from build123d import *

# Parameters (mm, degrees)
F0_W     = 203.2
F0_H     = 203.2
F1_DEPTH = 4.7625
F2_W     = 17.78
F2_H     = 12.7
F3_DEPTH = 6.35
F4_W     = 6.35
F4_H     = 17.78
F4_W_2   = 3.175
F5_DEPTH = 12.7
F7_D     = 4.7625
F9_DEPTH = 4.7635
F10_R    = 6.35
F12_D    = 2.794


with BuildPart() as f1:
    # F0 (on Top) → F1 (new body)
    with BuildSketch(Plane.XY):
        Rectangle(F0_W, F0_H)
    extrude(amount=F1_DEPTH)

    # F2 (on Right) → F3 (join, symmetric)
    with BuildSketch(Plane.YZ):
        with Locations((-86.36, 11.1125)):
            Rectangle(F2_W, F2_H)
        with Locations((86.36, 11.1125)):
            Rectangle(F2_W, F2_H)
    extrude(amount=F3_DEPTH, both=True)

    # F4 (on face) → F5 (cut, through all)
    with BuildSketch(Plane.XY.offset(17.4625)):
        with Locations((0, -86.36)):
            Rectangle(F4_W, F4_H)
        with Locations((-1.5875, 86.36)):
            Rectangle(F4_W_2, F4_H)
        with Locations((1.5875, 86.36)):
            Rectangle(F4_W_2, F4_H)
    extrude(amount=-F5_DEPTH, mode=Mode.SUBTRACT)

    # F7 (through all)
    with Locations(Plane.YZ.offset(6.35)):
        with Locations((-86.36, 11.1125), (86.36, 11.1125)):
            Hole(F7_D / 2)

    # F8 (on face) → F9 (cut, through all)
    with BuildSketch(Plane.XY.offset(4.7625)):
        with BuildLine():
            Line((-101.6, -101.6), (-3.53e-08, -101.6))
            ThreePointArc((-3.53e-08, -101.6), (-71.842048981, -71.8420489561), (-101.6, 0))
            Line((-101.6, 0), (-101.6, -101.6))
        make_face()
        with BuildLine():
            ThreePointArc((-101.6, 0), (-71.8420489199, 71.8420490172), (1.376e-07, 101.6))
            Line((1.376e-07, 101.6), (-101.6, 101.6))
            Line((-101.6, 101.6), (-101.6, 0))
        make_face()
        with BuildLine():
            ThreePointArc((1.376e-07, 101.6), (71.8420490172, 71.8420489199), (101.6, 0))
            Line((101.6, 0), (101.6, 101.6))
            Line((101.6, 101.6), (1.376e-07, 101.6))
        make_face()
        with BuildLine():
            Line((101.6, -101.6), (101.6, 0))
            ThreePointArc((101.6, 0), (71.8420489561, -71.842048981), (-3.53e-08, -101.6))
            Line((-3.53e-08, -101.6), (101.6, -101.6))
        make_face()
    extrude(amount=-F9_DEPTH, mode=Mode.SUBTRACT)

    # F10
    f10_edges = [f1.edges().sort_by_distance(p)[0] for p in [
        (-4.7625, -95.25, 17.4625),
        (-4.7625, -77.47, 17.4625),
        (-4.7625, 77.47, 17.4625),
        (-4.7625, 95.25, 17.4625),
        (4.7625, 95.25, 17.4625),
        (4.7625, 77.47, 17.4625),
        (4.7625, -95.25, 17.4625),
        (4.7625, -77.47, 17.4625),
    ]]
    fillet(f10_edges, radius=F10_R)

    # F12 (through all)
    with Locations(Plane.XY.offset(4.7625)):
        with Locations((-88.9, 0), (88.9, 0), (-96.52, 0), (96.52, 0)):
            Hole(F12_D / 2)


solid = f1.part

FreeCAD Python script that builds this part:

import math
import FreeCAD as App
import Part
import Sketcher
from FreeCAD import Vector
Q = App.Units.Quantity


def edges_at(feature, points):
    """Names of the edges that pass closest to the given points."""
    edges = feature.Shape.Edges
    near = lambda p: min(range(len(edges)), key=lambda i: edges[i].distToShape(Part.Vertex(*p))[0])
    return sorted({f"Edge{near(p) + 1}" for p in points})


def add_polygon(sketch, points):
    """Adds a closed chain of lines whose ends are joined by coincident constraints."""
    first, n = sketch.GeometryCount, len(points)
    for a, b in zip(points, points[1:] + points[:1]):
        sketch.addGeometry(Part.LineSegment(App.Vector(*a, 0), App.Vector(*b, 0)), False)
    for i in range(n):
        sketch.addConstraint(Sketcher.Constraint("Coincident", first + i, 2, first + (i + 1) % n, 1))

doc = App.newDocument("Part")
body = doc.addObject("PartDesign::Body", "Body")

# Sketch on XY plane
sketch1 = body.newObject("Sketcher::SketchObject", "Sketch")
sketch1.AttachmentSupport = (doc.getObject("XY_Plane"), [""])
sketch1.MapMode = "FlatFace"
add_polygon(sketch1, [(-101.6, 101.6), (-101.6, -101.6), (101.6, -101.6), (101.6, 101.6)])  # lines 0-3
sketch1.addConstraint(Sketcher.Constraint("Vertical", 0))
sketch1.addConstraint(Sketcher.Constraint("Horizontal", 1))
sketch1.addConstraint(Sketcher.Constraint("Vertical", 2))
sketch1.addConstraint(Sketcher.Constraint("Horizontal", 3))
sketch1.addConstraint(Sketcher.Constraint("Symmetric", 0, 2, 2, 2, -1, 1))
sketch1.addConstraint(Sketcher.Constraint("Equal", 3, 0))
sketch1.addConstraint(Sketcher.Constraint("DistanceX", 1, 1, 1, 2, Q("8 in")))
pad1 = body.newObject("PartDesign::Pad", "Pad")
pad1.Profile = sketch1
pad1.Length = Q("0.1875 in")

# Sketch on YZ plane
sketch2 = body.newObject("Sketcher::SketchObject", "Sketch001")
sketch2.AttachmentSupport = (doc.getObject("YZ_Plane"), [""])
sketch2.MapMode = "FlatFace"
add_polygon(sketch2, [(-95.25, 17.4625), (-95.25, 4.7625), (-77.47, 4.7625), (-77.47, 17.4625)])  # lines 0-3
add_polygon(sketch2, [(77.47, 17.4625), (77.47, 4.7625), (95.25, 4.7625), (95.25, 17.4625)])  # lines 4-7
sketch2.addConstraint(Sketcher.Constraint("Vertical", 0))
sketch2.addConstraint(Sketcher.Constraint("Horizontal", 1))
sketch2.addConstraint(Sketcher.Constraint("Vertical", 2))
sketch2.addConstraint(Sketcher.Constraint("Horizontal", 3))
sketch2.addConstraint(Sketcher.Constraint("Vertical", 4))
sketch2.addConstraint(Sketcher.Constraint("Horizontal", 5))
sketch2.addConstraint(Sketcher.Constraint("Vertical", 6))
sketch2.addConstraint(Sketcher.Constraint("Horizontal", 7))
sketch2.addConstraint(Sketcher.Constraint("Symmetric", 1, 2, 4, 2, -2))
sketch2.addConstraint(Sketcher.Constraint("Symmetric", 3, 2, 6, 2, -2))
sketch2.addConstraint(Sketcher.Constraint("DistanceX", 1, 1, 1, 2, Q("0.7 in")))
sketch2.addConstraint(Sketcher.Constraint("DistanceY", 0, 2, 0, 1, Q("0.5 in")))
sketch2.addConstraint(Sketcher.Constraint("DistanceX", 1, 2, 4, 2, Q("6.1 in")))
sketch2.addConstraint(Sketcher.Constraint("DistanceY", -1, 1, 0, 2, Q("0.1875 in")))
pad2 = body.newObject("PartDesign::Pad", "Pad001")
pad2.Profile = sketch2
pad2.Length = Q("0.5 in")
pad2.Midplane = True

# Sketch on XY plane
sketch3 = body.newObject("Sketcher::SketchObject", "Sketch002")
sketch3.AttachmentSupport = (doc.getObject("XY_Plane"), [""])
sketch3.MapMode = "FlatFace"
sketch3.AttachmentOffset = App.Placement(Vector(0, 0, 0.6875 * 25.4), App.Rotation())
add_polygon(sketch3, [(-3.175, -77.47), (-3.175, -95.25), (3.175, -95.25), (3.175, -77.47)])  # lines 0-3
add_polygon(sketch3, [(-3.175, 95.25), (-3.175, 77.47), (3.175, 77.47), (3.175, 95.25)])  # lines 4-7
sketch3.addConstraint(Sketcher.Constraint("Vertical", 0))
sketch3.addConstraint(Sketcher.Constraint("Horizontal", 1))
sketch3.addConstraint(Sketcher.Constraint("Vertical", 2))
sketch3.addConstraint(Sketcher.Constraint("Horizontal", 3))
sketch3.addConstraint(Sketcher.Constraint("Vertical", 4))
sketch3.addConstraint(Sketcher.Constraint("Horizontal", 5))
sketch3.addConstraint(Sketcher.Constraint("Vertical", 6))
sketch3.addConstraint(Sketcher.Constraint("Horizontal", 7))
sketch3.addConstraint(Sketcher.Constraint("Symmetric", 2, 2, 4, 2, -1, 1))
sketch3.addConstraint(Sketcher.Constraint("Symmetric", 0, 2, 6, 2, -1, 1))
sketch3.addConstraint(Sketcher.Constraint("Vertical", 3, 2, 4, 2))
sketch3.addConstraint(Sketcher.Constraint("DistanceY", 0, 2, 0, 1, Q("0.7 in")))
sketch3.addConstraint(Sketcher.Constraint("DistanceX", 1, 1, 1, 2, Q("0.25 in")))
sketch3.addConstraint(Sketcher.Constraint("DistanceY", 3, 2, 4, 2, Q("6.1 in")))
pocket1 = body.newObject("PartDesign::Pocket", "Pocket")
pocket1.Profile = sketch3
pocket1.Length = Q("0.5 in")

# Sketch on YZ plane
sketch4 = body.newObject("Sketcher::SketchObject", "Sketch003")
sketch4.AttachmentSupport = (doc.getObject("YZ_Plane"), [""])
sketch4.MapMode = "FlatFace"
sketch4.AttachmentOffset = App.Placement(Vector(0, 0, 0.25 * 25.4), App.Rotation())
sketch4.addGeometry(Part.Circle(Vector(-86.36, 11.1125, 0), Vector(0, 0, 1), 2.38125), False)
sketch4.addGeometry(Part.Circle(Vector(86.36, 11.1125, 0), Vector(0, 0, 1), 2.38125), False)
sketch4.addConstraint(Sketcher.Constraint("Equal", 0, 1))
sketch4.addConstraint(Sketcher.Constraint("Symmetric", 0, 3, 1, 3, -2))
sketch4.addConstraint(Sketcher.Constraint("Diameter", 0, Q("0.1875 in")))
sketch4.addConstraint(Sketcher.Constraint("DistanceX", 0, 3, -1, 1, Q("3.4 in")))
sketch4.addConstraint(Sketcher.Constraint("DistanceY", -1, 1, 0, 3, Q("0.4375 in")))
doc.recompute()
hole = body.newObject("PartDesign::Hole", "Hole")
hole.Profile = sketch4
hole.ThreadType = "None"
hole.Diameter = Q("0.1875 in")
hole.DepthType = "ThroughAll"

# Sketch on XY plane
sketch5 = body.newObject("Sketcher::SketchObject", "Sketch004")
sketch5.AttachmentSupport = (doc.getObject("XY_Plane"), [""])
sketch5.MapMode = "FlatFace"
sketch5.AttachmentOffset = App.Placement(Vector(0, 0, 0.1875 * 25.4), App.Rotation())
sketch5.addGeometry(Part.LineSegment(Vector(-101.6, -101.6, 0), Vector(0, -101.6, 0)), False)
sketch5.addGeometry(Part.ArcOfCircle(Part.Circle(Vector(0, 0, 0), Vector(0, 0, 1), 101.6), math.radians(180), math.radians(270)), False)
sketch5.addGeometry(Part.LineSegment(Vector(-101.6, 0, 0), Vector(-101.6, -101.6, 0)), False)
sketch5.addGeometry(Part.ArcOfCircle(Part.Circle(Vector(0, 0, 0), Vector(0, 0, 1), 101.6), math.radians(90), math.radians(180)), False)
sketch5.addGeometry(Part.LineSegment(Vector(0, 101.6, 0), Vector(-101.6, 101.6, 0)), False)
sketch5.addGeometry(Part.LineSegment(Vector(-101.6, 101.6, 0), Vector(-101.6, 0, 0)), False)
sketch5.addGeometry(Part.ArcOfCircle(Part.Circle(Vector(0, 0, 0), Vector(0, 0, 1), 101.6), math.radians(0), math.radians(90)), False)
sketch5.addGeometry(Part.LineSegment(Vector(101.6, 0, 0), Vector(101.6, 101.6, 0)), False)
sketch5.addGeometry(Part.LineSegment(Vector(101.6, 101.6, 0), Vector(0, 101.6, 0)), False)
sketch5.addGeometry(Part.LineSegment(Vector(101.6, -101.6, 0), Vector(101.6, 0, 0)), False)
sketch5.addGeometry(Part.ArcOfCircle(Part.Circle(Vector(0, 0, 0), Vector(0, 0, 1), 101.6), math.radians(-90), math.radians(0)), False)
sketch5.addGeometry(Part.LineSegment(Vector(0, -101.6, 0), Vector(101.6, -101.6, 0)), False)
sketch5.addConstraint(Sketcher.Constraint("Tangent", 0, 2, 1, 2))
sketch5.addConstraint(Sketcher.Constraint("Tangent", 1, 1, 2, 1))
sketch5.addConstraint(Sketcher.Constraint("Coincident", 2, 2, 0, 1))
sketch5.addConstraint(Sketcher.Constraint("Tangent", 3, 1, 4, 1))
sketch5.addConstraint(Sketcher.Constraint("Coincident", 4, 2, 5, 1))
sketch5.addConstraint(Sketcher.Constraint("Tangent", 5, 2, 3, 2))
sketch5.addConstraint(Sketcher.Constraint("Tangent", 6, 1, 7, 1))
sketch5.addConstraint(Sketcher.Constraint("Coincident", 7, 2, 8, 1))
sketch5.addConstraint(Sketcher.Constraint("Tangent", 8, 2, 6, 2))
sketch5.addConstraint(Sketcher.Constraint("Tangent", 9, 2, 10, 2))
sketch5.addConstraint(Sketcher.Constraint("Tangent", 10, 1, 11, 1))
sketch5.addConstraint(Sketcher.Constraint("Coincident", 11, 2, 9, 1))
sketch5.addConstraint(Sketcher.Constraint("Horizontal", 0))
sketch5.addConstraint(Sketcher.Constraint("Vertical", 2))
sketch5.addConstraint(Sketcher.Constraint("Horizontal", 4))
sketch5.addConstraint(Sketcher.Constraint("Vertical", 5))
sketch5.addConstraint(Sketcher.Constraint("Vertical", 7))
sketch5.addConstraint(Sketcher.Constraint("Horizontal", 8))
sketch5.addConstraint(Sketcher.Constraint("Vertical", 9))
sketch5.addConstraint(Sketcher.Constraint("Horizontal", 11))
sketch5.addConstraint(Sketcher.Constraint("Coincident", 1, 3, -1, 1))
sketch5.addConstraint(Sketcher.Constraint("Coincident", 3, 3, -1, 1))
sketch5.addConstraint(Sketcher.Constraint("Coincident", 6, 3, -1, 1))
sketch5.addConstraint(Sketcher.Constraint("Coincident", 10, 3, -1, 1))
sketch5.addConstraint(Sketcher.Constraint("Equal", 1, 3))
sketch5.addConstraint(Sketcher.Constraint("Equal", 3, 6))
sketch5.addConstraint(Sketcher.Constraint("Equal", 6, 10))
sketch5.addConstraint(Sketcher.Constraint("Radius", 1, Q("4 in")))
pocket2 = body.newObject("PartDesign::Pocket", "Pocket001")
pocket2.Profile = sketch5
pocket2.Type = "ThroughAll"
doc.recompute()

fillet = body.newObject("PartDesign::Fillet", "Fillet")
fillet.Base = (pocket2, edges_at(pocket2, [
    (-4.763, -95.25, 17.462),
    (-4.763, -77.47, 17.462),
    (-4.763, 77.47, 17.462),
    (-4.763, 95.25, 17.462),
    (4.763, 95.25, 17.462),
    (4.763, 77.47, 17.462),
    (4.763, -95.25, 17.462),
    (4.763, -77.47, 17.462),
]))
fillet.Radius = Q("0.25 in")

# Sketch on XY plane
sketch6 = body.newObject("Sketcher::SketchObject", "Sketch005")
sketch6.AttachmentSupport = (doc.getObject("XY_Plane"), [""])
sketch6.MapMode = "FlatFace"
sketch6.AttachmentOffset = App.Placement(Vector(0, 0, 0.1875 * 25.4), App.Rotation())
sketch6.addGeometry(Part.Circle(Vector(-88.9, 0, 0), Vector(0, 0, 1), 1.397), False)
sketch6.addGeometry(Part.Circle(Vector(88.9, 0, 0), Vector(0, 0, 1), 1.397), False)
sketch6.addGeometry(Part.Circle(Vector(-96.52, 0, 0), Vector(0, 0, 1), 1.397), False)
sketch6.addGeometry(Part.Circle(Vector(96.52, 0, 0), Vector(0, 0, 1), 1.397), False)
sketch6.addConstraint(Sketcher.Constraint("Equal", 0, 1))
sketch6.addConstraint(Sketcher.Constraint("Equal", 1, 2))
sketch6.addConstraint(Sketcher.Constraint("Equal", 2, 3))
sketch6.addConstraint(Sketcher.Constraint("Symmetric", 0, 3, 1, 3, -1, 1))
sketch6.addConstraint(Sketcher.Constraint("Symmetric", 2, 3, 3, 3, -1, 1))
sketch6.addConstraint(Sketcher.Constraint("PointOnObject", 0, 3, -1))
sketch6.addConstraint(Sketcher.Constraint("PointOnObject", 2, 3, -1))
sketch6.addConstraint(Sketcher.Constraint("Diameter", 0, Q("0.11 in")))
sketch6.addConstraint(Sketcher.Constraint("DistanceX", 0, 3, 1, 3, Q("7 in")))
sketch6.addConstraint(Sketcher.Constraint("DistanceX", 2, 3, -1, 1, Q("3.8 in")))
doc.recompute()
hole2 = body.newObject("PartDesign::Hole", "Hole001")
hole2.Profile = sketch6
hole2.ThreadType = "None"
hole2.Diameter = Q("0.11 in")
hole2.DepthType = "ThroughAll"

doc.recompute()
